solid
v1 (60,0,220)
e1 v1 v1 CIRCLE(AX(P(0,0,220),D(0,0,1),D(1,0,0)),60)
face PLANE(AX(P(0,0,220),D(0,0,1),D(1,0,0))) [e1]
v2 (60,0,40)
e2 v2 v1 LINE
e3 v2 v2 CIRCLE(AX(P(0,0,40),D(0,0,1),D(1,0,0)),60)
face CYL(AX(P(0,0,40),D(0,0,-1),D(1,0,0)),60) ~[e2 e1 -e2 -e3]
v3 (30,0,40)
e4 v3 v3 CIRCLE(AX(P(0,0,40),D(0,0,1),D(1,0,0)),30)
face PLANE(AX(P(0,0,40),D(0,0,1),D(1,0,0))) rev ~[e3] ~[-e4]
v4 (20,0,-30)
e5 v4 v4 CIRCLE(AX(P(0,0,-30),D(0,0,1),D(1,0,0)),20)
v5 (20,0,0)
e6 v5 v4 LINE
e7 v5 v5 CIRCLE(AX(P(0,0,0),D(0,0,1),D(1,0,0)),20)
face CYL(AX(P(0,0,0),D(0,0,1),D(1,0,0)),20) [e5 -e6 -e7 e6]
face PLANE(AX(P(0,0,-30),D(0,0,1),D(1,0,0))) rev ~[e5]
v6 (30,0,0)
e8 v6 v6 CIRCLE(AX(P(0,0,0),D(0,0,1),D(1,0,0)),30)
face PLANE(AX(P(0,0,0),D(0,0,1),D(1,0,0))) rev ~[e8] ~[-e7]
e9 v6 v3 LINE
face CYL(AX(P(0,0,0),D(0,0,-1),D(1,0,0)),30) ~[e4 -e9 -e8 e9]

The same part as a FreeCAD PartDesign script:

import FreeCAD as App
import Part
import Sketcher

V = App.Vector

doc = App.newDocument("Part")
body = doc.addObject("PartDesign::Body", "Body")

# Sketch on XY plane
sketch1 = doc.addObject("Sketcher::SketchObject", "Sketch")
body.addObject(sketch1)
sketch1.AttachmentSupport = (doc.XY_Plane, [""])
sketch1.MapMode = "FlatFace"
sketch1.addGeometry(Part.Circle(V(0, 0, 0), V(0, 0, 1), 20), False)
sketch1.addConstraint([
    Sketcher.Constraint("Coincident", 0, 3, -1, 1),
    Sketcher.Constraint("Diameter", 0, 40.0),
])
pad1 = doc.addObject("PartDesign::Pad", "Pad")
body.addObject(pad1)
pad1.Profile = sketch1
pad1.Length = 30
pad1.Reversed = True

# Sketch on XY plane
sketch2 = doc.addObject("Sketcher::SketchObject", "Sketch001")
body.addObject(sketch2)
sketch2.AttachmentSupport = (doc.XY_Plane, [""])
sketch2.MapMode = "FlatFace"
sketch2.addGeometry(Part.Circle(V(0, 0, 0), V(0, 0, 1), 30), False)
sketch2.addConstraint([
    Sketcher.Constraint("Coincident", 0, 3, -1, 1),
    Sketcher.Constraint("Diameter", 0, 60.0),
])
pad2 = doc.addObject("PartDesign::Pad", "Pad001")
body.addObject(pad2)
pad2.Profile = sketch2
pad2.Length = 40

# Sketch on XY plane
sketch3 = doc.addObject("Sketcher::SketchObject", "Sketch002")
body.addObject(sketch3)
sketch3.AttachmentSupport = (doc.XY_Plane, [""])
sketch3.MapMode = "FlatFace"
sketch3.AttachmentOffset = App.Placement(V(0, 0, 40), App.Rotation())
sketch3.addGeometry(Part.Circle(V(0, 0, 0), V(0, 0, 1), 60), False)
sketch3.addConstraint([
    Sketcher.Constraint("Coincident", 0, 3, -1, 1),
    Sketcher.Constraint("Diameter", 0, 120.0),
])
pad3 = doc.addObject("PartDesign::Pad", "Pad002")
body.addObject(pad3)
pad3.Profile = sketch3
pad3.Length = 180

doc.recompute()
